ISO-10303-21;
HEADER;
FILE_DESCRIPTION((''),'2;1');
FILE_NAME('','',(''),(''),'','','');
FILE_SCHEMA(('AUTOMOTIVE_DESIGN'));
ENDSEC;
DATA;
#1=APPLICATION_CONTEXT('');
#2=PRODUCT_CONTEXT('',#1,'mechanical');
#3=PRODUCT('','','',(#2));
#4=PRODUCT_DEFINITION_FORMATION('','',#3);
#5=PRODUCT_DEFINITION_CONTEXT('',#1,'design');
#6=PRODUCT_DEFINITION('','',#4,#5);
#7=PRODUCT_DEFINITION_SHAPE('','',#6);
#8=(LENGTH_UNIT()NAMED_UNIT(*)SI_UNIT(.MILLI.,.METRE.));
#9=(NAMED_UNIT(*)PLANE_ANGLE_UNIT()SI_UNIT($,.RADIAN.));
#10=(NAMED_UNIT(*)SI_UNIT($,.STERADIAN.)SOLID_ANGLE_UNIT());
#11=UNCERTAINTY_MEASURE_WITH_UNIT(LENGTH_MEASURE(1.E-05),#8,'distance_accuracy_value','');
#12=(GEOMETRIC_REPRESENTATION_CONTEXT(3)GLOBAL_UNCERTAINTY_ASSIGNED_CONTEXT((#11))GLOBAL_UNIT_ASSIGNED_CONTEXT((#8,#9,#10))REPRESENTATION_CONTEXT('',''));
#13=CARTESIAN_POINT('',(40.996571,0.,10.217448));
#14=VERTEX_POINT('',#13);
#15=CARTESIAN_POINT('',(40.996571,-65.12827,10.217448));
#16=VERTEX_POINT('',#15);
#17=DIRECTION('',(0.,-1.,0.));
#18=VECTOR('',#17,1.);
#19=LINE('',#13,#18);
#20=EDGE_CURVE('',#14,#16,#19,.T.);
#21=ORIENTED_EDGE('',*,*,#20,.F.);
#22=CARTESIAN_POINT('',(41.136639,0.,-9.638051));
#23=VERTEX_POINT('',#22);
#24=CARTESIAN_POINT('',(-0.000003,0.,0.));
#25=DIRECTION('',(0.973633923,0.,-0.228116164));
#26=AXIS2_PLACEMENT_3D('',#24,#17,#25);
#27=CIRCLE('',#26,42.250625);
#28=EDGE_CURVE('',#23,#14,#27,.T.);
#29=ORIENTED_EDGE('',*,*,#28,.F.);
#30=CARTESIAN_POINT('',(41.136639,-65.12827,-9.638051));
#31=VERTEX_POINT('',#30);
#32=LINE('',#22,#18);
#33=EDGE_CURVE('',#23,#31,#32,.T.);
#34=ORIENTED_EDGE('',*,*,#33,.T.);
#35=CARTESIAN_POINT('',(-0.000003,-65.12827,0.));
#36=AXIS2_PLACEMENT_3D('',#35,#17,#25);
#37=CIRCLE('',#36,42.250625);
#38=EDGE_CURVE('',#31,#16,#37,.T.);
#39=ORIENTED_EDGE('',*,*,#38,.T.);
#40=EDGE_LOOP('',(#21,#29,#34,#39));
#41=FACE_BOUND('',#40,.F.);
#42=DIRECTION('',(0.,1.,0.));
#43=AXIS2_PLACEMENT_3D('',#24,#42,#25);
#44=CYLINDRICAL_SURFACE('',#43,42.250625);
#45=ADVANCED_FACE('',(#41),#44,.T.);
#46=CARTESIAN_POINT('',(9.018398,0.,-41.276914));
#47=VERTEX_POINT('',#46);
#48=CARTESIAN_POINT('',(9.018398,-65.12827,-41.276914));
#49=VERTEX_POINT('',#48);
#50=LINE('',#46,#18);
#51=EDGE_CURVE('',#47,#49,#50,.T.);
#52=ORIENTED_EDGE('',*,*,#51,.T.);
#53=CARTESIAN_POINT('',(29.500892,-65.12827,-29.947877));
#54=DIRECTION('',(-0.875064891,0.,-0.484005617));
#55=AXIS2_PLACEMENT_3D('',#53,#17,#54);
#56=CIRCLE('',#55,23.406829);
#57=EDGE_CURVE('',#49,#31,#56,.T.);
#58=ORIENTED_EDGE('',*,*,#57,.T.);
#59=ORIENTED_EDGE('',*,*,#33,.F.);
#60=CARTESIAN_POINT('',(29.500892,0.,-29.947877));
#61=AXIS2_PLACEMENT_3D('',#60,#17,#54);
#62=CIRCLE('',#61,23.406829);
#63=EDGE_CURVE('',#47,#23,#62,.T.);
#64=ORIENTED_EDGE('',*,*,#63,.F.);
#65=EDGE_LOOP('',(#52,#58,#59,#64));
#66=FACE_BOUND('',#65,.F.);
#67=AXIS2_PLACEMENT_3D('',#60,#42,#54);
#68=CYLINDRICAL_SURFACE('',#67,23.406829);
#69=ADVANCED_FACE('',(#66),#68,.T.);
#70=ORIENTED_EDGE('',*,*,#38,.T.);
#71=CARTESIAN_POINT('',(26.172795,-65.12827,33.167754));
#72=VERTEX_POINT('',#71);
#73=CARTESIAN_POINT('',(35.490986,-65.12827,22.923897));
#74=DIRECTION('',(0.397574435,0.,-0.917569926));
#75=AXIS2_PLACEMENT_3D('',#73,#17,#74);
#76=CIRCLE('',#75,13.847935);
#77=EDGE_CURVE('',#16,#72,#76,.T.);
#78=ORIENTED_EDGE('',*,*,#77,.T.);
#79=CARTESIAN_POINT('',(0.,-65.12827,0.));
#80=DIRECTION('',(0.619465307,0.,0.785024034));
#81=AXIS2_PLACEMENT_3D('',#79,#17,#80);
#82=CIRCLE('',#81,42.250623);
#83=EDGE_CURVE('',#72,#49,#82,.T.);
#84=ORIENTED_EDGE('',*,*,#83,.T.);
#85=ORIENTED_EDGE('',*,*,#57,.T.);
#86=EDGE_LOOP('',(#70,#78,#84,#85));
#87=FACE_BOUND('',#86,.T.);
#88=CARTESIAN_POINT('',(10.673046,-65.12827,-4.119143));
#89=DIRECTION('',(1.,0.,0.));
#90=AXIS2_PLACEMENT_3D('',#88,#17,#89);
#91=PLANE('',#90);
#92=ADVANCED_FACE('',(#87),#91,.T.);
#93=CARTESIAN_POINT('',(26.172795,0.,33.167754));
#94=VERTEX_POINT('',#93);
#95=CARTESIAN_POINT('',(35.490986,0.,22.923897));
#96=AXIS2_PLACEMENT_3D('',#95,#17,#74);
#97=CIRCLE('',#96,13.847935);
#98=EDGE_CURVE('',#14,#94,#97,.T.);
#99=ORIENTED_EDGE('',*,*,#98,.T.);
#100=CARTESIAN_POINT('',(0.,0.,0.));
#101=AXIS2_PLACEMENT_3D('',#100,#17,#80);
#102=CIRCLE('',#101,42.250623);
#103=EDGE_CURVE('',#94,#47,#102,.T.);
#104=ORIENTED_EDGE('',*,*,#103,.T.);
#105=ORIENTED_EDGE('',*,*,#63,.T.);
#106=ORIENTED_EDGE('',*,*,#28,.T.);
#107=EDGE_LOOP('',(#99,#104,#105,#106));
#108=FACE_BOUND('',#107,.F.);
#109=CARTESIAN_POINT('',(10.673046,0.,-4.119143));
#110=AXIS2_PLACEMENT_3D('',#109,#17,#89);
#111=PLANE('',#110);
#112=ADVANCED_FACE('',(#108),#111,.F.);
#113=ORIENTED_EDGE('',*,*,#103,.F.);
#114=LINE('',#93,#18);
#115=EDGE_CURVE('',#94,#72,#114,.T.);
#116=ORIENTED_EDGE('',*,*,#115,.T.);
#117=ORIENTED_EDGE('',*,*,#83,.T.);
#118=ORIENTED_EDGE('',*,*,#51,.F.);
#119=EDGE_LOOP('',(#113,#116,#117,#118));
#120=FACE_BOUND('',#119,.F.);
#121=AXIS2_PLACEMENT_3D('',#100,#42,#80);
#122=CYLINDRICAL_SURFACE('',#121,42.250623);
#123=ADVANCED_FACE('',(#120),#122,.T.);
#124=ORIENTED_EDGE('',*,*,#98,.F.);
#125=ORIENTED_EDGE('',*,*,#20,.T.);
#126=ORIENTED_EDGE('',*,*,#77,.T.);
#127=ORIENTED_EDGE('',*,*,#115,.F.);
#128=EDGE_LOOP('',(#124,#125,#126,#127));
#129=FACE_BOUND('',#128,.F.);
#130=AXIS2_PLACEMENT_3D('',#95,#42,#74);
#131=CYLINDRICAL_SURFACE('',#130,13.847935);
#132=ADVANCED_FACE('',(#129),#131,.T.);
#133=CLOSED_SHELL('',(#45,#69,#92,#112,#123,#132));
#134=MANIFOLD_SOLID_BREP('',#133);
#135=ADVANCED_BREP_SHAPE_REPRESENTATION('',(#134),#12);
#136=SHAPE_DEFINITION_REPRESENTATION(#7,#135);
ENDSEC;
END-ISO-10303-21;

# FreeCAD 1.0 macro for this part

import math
import FreeCAD as App
import Part
import Sketcher

V = App.Vector
Q = App.Units.Quantity

doc = App.newDocument("Part")
body = doc.addObject("PartDesign::Body", "Body")

# Sketch on XZ plane
sketch1 = body.newObject("Sketcher::SketchObject", "Sketch")
sketch1.AttachmentSupport = (doc.getObject("XZ_Plane"), [""])
sketch1.MapMode = "FlatFace"
sketch1.addGeometry([
    Part.ArcOfCircle(Part.Circle(V(30, -30, 0), V(0, 0, 1), 23), math.radians(-151), math.radians(60)),
    Part.ArcOfCircle(Part.Circle(V(0, 0, 0), V(0, 0, 1), 42), math.radians(-13), math.radians(14)),
    Part.ArcOfCircle(Part.Circle(V(35, 23, 0), V(0, 0, 1), 14), math.radians(-67), math.radians(132)),
    Part.ArcOfCircle(Part.Circle(V(0, 0, 0), V(0, 0, 1), 42), math.radians(52), math.radians(282)),
], False)
sketch1.addConstraint([
    Sketcher.Constraint("Coincident", 0, 2, 1, 1),
    Sketcher.Constraint("Coincident", 1, 2, 2, 1),
    Sketcher.Constraint("Coincident", 2, 2, 3, 1),
    Sketcher.Constraint("Coincident", 3, 2, 0, 1),
    Sketcher.Constraint("Coincident", 1, 3, -1, 1),
    Sketcher.Constraint("Coincident", 3, 3, -1, 1),
    Sketcher.Constraint("Radius", 0, Q("23.406829 mm")),
    Sketcher.Constraint("Radius", 1, Q("42.250625 mm")),
    Sketcher.Constraint("Radius", 2, Q("13.847935 mm")),
    Sketcher.Constraint("Radius", 3, Q("42.250623 mm")),
    Sketcher.Constraint("DistanceX", -1, 1, 3, 2, Q("9.018398 mm")),
    Sketcher.Constraint("DistanceY", 0, 2, 1, 2, Q("19.855499 mm")),
    Sketcher.Constraint("DistanceX", -1, 1, 0, 2, Q("41.136639 mm")),
    Sketcher.Constraint("DistanceX", 1, 3, 2, 3, Q("35.490989 mm")),
])
pad1 = body.newObject("PartDesign::Pad", "Pad")
pad1.Profile = sketch1
pad1.Length = 65.12827

doc.recompute()
